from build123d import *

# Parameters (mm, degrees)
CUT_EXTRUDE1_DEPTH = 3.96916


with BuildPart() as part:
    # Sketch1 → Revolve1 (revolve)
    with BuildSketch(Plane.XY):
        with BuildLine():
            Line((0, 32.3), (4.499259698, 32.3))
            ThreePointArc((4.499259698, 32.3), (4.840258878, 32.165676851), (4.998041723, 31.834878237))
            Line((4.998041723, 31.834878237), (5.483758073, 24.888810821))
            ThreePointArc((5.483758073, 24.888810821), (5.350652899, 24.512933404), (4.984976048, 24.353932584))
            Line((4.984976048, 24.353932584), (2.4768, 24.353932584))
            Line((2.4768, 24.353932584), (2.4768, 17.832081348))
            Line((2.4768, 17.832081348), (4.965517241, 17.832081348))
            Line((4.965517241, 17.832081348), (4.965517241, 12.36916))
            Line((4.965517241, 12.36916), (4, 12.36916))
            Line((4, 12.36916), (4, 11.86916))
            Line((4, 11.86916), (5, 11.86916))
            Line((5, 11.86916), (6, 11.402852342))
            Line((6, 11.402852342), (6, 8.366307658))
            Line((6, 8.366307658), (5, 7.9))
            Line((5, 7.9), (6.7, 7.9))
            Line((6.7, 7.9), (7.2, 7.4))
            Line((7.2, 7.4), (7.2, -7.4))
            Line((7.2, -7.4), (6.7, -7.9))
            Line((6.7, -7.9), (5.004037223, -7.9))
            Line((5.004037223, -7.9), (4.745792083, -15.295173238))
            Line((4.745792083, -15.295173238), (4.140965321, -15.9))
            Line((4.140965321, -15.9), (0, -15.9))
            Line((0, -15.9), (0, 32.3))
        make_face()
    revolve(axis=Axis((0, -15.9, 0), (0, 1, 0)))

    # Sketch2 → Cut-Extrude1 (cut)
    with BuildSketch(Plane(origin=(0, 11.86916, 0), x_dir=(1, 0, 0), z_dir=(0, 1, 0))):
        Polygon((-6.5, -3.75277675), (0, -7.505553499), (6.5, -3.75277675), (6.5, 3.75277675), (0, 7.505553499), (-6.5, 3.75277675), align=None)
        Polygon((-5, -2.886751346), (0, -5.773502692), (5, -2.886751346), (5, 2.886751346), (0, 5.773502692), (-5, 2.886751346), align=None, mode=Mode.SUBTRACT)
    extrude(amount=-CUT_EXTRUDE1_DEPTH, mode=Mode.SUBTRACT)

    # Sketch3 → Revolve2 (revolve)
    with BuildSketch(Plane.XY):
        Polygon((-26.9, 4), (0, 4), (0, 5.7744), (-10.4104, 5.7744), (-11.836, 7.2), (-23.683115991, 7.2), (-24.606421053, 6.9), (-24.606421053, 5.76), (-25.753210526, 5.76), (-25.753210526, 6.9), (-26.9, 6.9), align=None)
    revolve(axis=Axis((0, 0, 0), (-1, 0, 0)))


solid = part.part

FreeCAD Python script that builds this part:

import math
import FreeCAD as App
import Part
import Sketcher
Q = App.Units.Quantity

doc = App.newDocument("Part")
body = doc.addObject("PartDesign::Body", "Body")

# Sketch on XY plane
sketch1 = body.newObject("Sketcher::SketchObject", "Sketch")
sketch1.AttachmentSupport = (doc.getObject("XY_Plane"), [""])
sketch1.MapMode = "FlatFace"
sketch1.addGeometry([
    Part.LineSegment(App.Vector(4.5, 32.3, 0), App.Vector(0, 32.3, 0)),  # 0
    Part.LineSegment(App.Vector(0, 32.3, 0), App.Vector(0, -15.9, 0)),  # 1
    Part.LineSegment(App.Vector(0, -15.9, 0), App.Vector(4.14, -15.9, 0)),  # 2
    Part.LineSegment(App.Vector(4.14, -15.9, 0), App.Vector(4.75, -15.3, 0)),  # 3
    Part.LineSegment(App.Vector(4.75, -15.3, 0), App.Vector(5, -7.9, 0)),  # 4
    Part.LineSegment(App.Vector(5, -7.9, 0), App.Vector(6.7, -7.9, 0)),  # 5
    Part.LineSegment(App.Vector(6.7, -7.9, 0), App.Vector(7.2, -7.4, 0)),  # 6
    Part.LineSegment(App.Vector(7.2, -7.4, 0), App.Vector(7.2, 7.4, 0)),  # 7
    Part.LineSegment(App.Vector(7.2, 7.4, 0), App.Vector(6.7, 7.9, 0)),  # 8
    Part.LineSegment(App.Vector(6.7, 7.9, 0), App.Vector(5, 7.9, 0)),  # 9
    Part.LineSegment(App.Vector(5, 7.9, 0), App.Vector(6, 8.37, 0)),  # 10
    Part.LineSegment(App.Vector(6, 8.37, 0), App.Vector(6, 11.4, 0)),  # 11
    Part.LineSegment(App.Vector(6, 11.4, 0), App.Vector(5, 11.87, 0)),  # 12
    Part.LineSegment(App.Vector(5, 11.87, 0), App.Vector(4, 11.87, 0)),  # 13
    Part.LineSegment(App.Vector(4, 11.87, 0), App.Vector(4, 12.37, 0)),  # 14
    Part.LineSegment(App.Vector(4, 12.37, 0), App.Vector(4.97, 12.37, 0)),  # 15
    Part.LineSegment(App.Vector(4.97, 12.37, 0), App.Vector(4.97, 17.83, 0)),  # 16
    Part.LineSegment(App.Vector(4.97, 17.83, 0), App.Vector(2.48, 17.83, 0)),  # 17
    Part.LineSegment(App.Vector(2.48, 17.83, 0), App.Vector(2.48, 24.35, 0)),  # 18
    Part.LineSegment(App.Vector(2.48, 24.35, 0), App.Vector(4.98, 24.35, 0)),  # 19
    Part.ArcOfCircle(Part.Circle(App.Vector(4.98, 24.85, 0), App.Vector(0, 0, 1), 0.5), math.radians(-90), math.radians(4)),  # 20
    Part.LineSegment(App.Vector(5.48, 24.89, 0), App.Vector(5, 31.83, 0)),  # 21
    Part.ArcOfCircle(Part.Circle(App.Vector(4.5, 31.8, 0), App.Vector(0, 0, 1), 0.5), math.radians(4), math.radians(90)),  # 22
], False)
sketch1.addConstraint([
    Sketcher.Constraint("Coincident", 0, 2, 1, 1),
    Sketcher.Constraint("Coincident", 1, 2, 2, 1),
    Sketcher.Constraint("Coincident", 2, 2, 3, 1),
    Sketcher.Constraint("Coincident", 3, 2, 4, 1),
    Sketcher.Constraint("Coincident", 4, 2, 5, 1),
    Sketcher.Constraint("Coincident", 5, 2, 6, 1),
    Sketcher.Constraint("Coincident", 6, 2, 7, 1),
    Sketcher.Constraint("Coincident", 7, 2, 8, 1),
    Sketcher.Constraint("Coincident", 8, 2, 9, 1),
    Sketcher.Constraint("Coincident", 9, 2, 10, 1),
    Sketcher.Constraint("Coincident", 10, 2, 11, 1),
    Sketcher.Constraint("Coincident", 11, 2, 12, 1),
    Sketcher.Constraint("Coincident", 12, 2, 13, 1),
    Sketcher.Constraint("Coincident", 13, 2, 14, 1),
    Sketcher.Constraint("Coincident", 14, 2, 15, 1),
    Sketcher.Constraint("Coincident", 15, 2, 16, 1),
    Sketcher.Constraint("Coincident", 16, 2, 17, 1),
    Sketcher.Constraint("Coincident", 17, 2, 18, 1),
    Sketcher.Constraint("Coincident", 18, 2, 19, 1),
    Sketcher.Constraint("Tangent", 19, 2, 20, 1),
    Sketcher.Constraint("Tangent", 20, 2, 21, 1),
    Sketcher.Constraint("Tangent", 21, 2, 22, 1),
    Sketcher.Constraint("Tangent", 22, 2, 0, 1),
    Sketcher.Constraint("Horizontal", 0),
    Sketcher.Constraint("Vertical", 1),
    Sketcher.Constraint("Horizontal", 2),
    Sketcher.Constraint("Horizontal", 5),
    Sketcher.Constraint("Vertical", 7),
    Sketcher.Constraint("Horizontal", 9),
    Sketcher.Constraint("Vertical", 11),
    Sketcher.Constraint("Horizontal", 13),
    Sketcher.Constraint("Vertical", 14),
    Sketcher.Constraint("Horizontal", 15),
    Sketcher.Constraint("Vertical", 16),
    Sketcher.Constraint("Horizontal", 17),
    Sketcher.Constraint("Vertical", 18),
    Sketcher.Constraint("Horizontal", 19),
    Sketcher.Constraint("Equal", 20, 22),
    Sketcher.Constraint("Symmetric", 5, 2, 8, 2, -1),
    Sketcher.Constraint("PointOnObject", 0, 2, -2),
    Sketcher.Constraint("Parallel", 3, 6),
    Sketcher.Constraint("Perpendicular", 6, 8),
    Sketcher.Constraint("Vertical", 9, 2, 12, 2),
    Sketcher.Constraint("Equal", 6, 8),
    Sketcher.Constraint("Equal", 10, 12),
    Sketcher.Constraint("Radius", 20, 0.5),
    Sketcher.Constraint("DistanceX", 13, 2, 13, 1, 1.0),
    Sketcher.Constraint("Angle", 4, Q("88 deg")),
    Sketcher.Constraint("Angle", 10, Q("25 deg")),
    Sketcher.Constraint("Angle", 21, Q("94 deg")),
    Sketcher.Constraint("DistanceX", 9, 2, 9, 1, 1.7),
    Sketcher.Constraint("DistanceY", 1, 2, 1, 1, 48.2),
    Sketcher.Constraint("DistanceY", 7, 1, 7, 2, 14.8),
    Sketcher.Constraint("DistanceY", 14, 1, 14, 2, 0.5),
    Sketcher.Constraint("DistanceX", -1, 1, 9, 2, 5.0),
    Sketcher.Constraint("DistanceX", -1, 1, 10, 2, 6.0),
    Sketcher.Constraint("DistanceY", 2, 2, 4, 2, 8.0),
    Sketcher.Constraint("DistanceY", -1, 1, 22, 3, 31.8),
    Sketcher.Constraint("DistanceX", 0, 2, 0, 1, 4.49926),
    Sketcher.Constraint("DistanceY", 16, 1, 16, 2, 5.462921),
    Sketcher.Constraint("DistanceY", 18, 1, 18, 2, 6.521851),
    Sketcher.Constraint("DistanceX", -1, 1, 17, 2, 2.4768),
    Sketcher.Constraint("DistanceX", 22, 3, 20, 2, 0.984498),
    Sketcher.Constraint("Distance", 4, 7.399681),
    Sketcher.Constraint("DistanceX", 2, 1, 2, 2, 4.140965),
    Sketcher.Constraint("DistanceX", 15, 1, 15, 2, 0.965517),
])
revolution = body.newObject("PartDesign::Revolution", "Revolution")
revolution.Profile = sketch1
revolution.ReferenceAxis = (sketch1, ["V_Axis"])
revolution.Angle = 360

# Sketch on XZ plane
sketch2 = body.newObject("Sketcher::SketchObject", "Sketch001")
sketch2.AttachmentSupport = (doc.getObject("XZ_Plane"), [""])
sketch2.MapMode = "FlatFace"
sketch2.AttachmentOffset = App.Placement(App.Vector(0, 0, -11.86916), App.Rotation())
sketch2.addGeometry([
    Part.LineSegment(App.Vector(-6, 4, 0), App.Vector(0, 8, 0)),  # 0
    Part.LineSegment(App.Vector(0, 8, 0), App.Vector(6, 4, 0)),  # 1
    Part.LineSegment(App.Vector(6, 4, 0), App.Vector(6, -4, 0)),  # 2
    Part.LineSegment(App.Vector(6, -4, 0), App.Vector(0, -8, 0)),  # 3
    Part.LineSegment(App.Vector(0, -8, 0), App.Vector(-6, -4, 0)),  # 4
    Part.LineSegment(App.Vector(-6, -4, 0), App.Vector(-6, 4, 0)),  # 5
    Part.LineSegment(App.Vector(0, 6, 0), App.Vector(-5, 3, 0)),  # 6
    Part.LineSegment(App.Vector(-5, 3, 0), App.Vector(-5, -3, 0)),  # 7
    Part.LineSegment(App.Vector(-5, -3, 0), App.Vector(0, -6, 0)),  # 8
    Part.LineSegment(App.Vector(0, -6, 0), App.Vector(5, -3, 0)),  # 9
    Part.LineSegment(App.Vector(5, -3, 0), App.Vector(5, 3, 0)),  # 10
    Part.LineSegment(App.Vector(5, 3, 0), App.Vector(0, 6, 0)),  # 11
], False)
sketch2.addConstraint([
    Sketcher.Constraint("Coincident", 0, 2, 1, 1),
    Sketcher.Constraint("Coincident", 1, 2, 2, 1),
    Sketcher.Constraint("Coincident", 2, 2, 3, 1),
    Sketcher.Constraint("Coincident", 3, 2, 4, 1),
    Sketcher.Constraint("Coincident", 4, 2, 5, 1),
    Sketcher.Constraint("Coincident", 5, 2, 0, 1),
    Sketcher.Constraint("Coincident", 6, 2, 7, 1),
    Sketcher.Constraint("Coincident", 7, 2, 8, 1),
    Sketcher.Constraint("Coincident", 8, 2, 9, 1),
    Sketcher.Constraint("Coincident", 9, 2, 10, 1),
    Sketcher.Constraint("Coincident", 10, 2, 11, 1),
    Sketcher.Constraint("Coincident", 11, 2, 6, 1),
    Sketcher.Constraint("Vertical", 2),
    Sketcher.Constraint("Vertical", 5),
    Sketcher.Constraint("Vertical", 7),
    Sketcher.Constraint("Vertical", 10),
    Sketcher.Constraint("Symmetric", 0, 2, 3, 2, -1, 1),
    Sketcher.Constraint("Symmetric", 1, 2, 4, 2, -1, 1),
    Sketcher.Constraint("Symmetric", 6, 2, 9, 2, -1, 1),
    Sketcher.Constraint("Symmetric", 8, 2, 11, 2, -1, 1),
    Sketcher.Constraint("PointOnObject", 0, 2, -2),
    Sketcher.Constraint("PointOnObject", 8, 2, -2),
    Sketcher.Constraint("Parallel", 0, 3),
    Sketcher.Constraint("Parallel", 3, 6),
    Sketcher.Constraint("Parallel", 4, 8),
    Sketcher.Constraint("Parallel", 8, 11),
    Sketcher.Constraint("Horizontal", 2, 2, 4, 2),
    Sketcher.Constraint("Angle", 0, Q("30 deg")),
    Sketcher.Constraint("DistanceX", 6, 2, -1, 1, 5.0),
    Sketcher.Constraint("DistanceX", 4, 2, 2, 2, 13.0),
    Sketcher.Constraint("DistanceY", 2, 2, 2, 1, 7.505554),
    Sketcher.Constraint("DistanceY", 7, 2, 7, 1, 5.773503),
])
pocket1 = body.newObject("PartDesign::Pocket", "Pocket")
pocket1.Profile = sketch2
pocket1.Length = 3.96916
pocket1.Reversed = True

# Sketch on XY plane
sketch3 = body.newObject("Sketcher::SketchObject", "Sketch002")
sketch3.AttachmentSupport = (doc.getObject("XY_Plane"), [""])
sketch3.MapMode = "FlatFace"
sketch3.addGeometry([
    Part.LineSegment(App.Vector(-26.9, 4, 0), App.Vector(0, 4, 0)),  # 0
    Part.LineSegment(App.Vector(0, 4, 0), App.Vector(0, 5.8, 0)),  # 1
    Part.LineSegment(App.Vector(0, 5.8, 0), App.Vector(-10.4, 5.8, 0)),  # 2
    Part.LineSegment(App.Vector(-10.4, 5.8, 0), App.Vector(-11.8, 7.2, 0)),  # 3
    Part.LineSegment(App.Vector(-11.8, 7.2, 0), App.Vector(-23.7, 7.2, 0)),  # 4
    Part.LineSegment(App.Vector(-23.7, 7.2, 0), App.Vector(-24.6, 6.9, 0)),  # 5
    Part.LineSegment(App.Vector(-24.6, 6.9, 0), App.Vector(-24.6, 5.8, 0)),  # 6
    Part.LineSegment(App.Vector(-24.6, 5.8, 0), App.Vector(-25.8, 5.8, 0)),  # 7
    Part.LineSegment(App.Vector(-25.8, 5.8, 0), App.Vector(-25.8, 6.9, 0)),  # 8
    Part.LineSegment(App.Vector(-25.8, 6.9, 0), App.Vector(-26.9, 6.9, 0)),  # 9
    Part.LineSegment(App.Vector(-26.9, 6.9, 0), App.Vector(-26.9, 4, 0)),  # 10
], False)
sketch3.addConstraint([
    Sketcher.Constraint("Coincident", 0, 2, 1, 1),
    Sketcher.Constraint("Coincident", 1, 2, 2, 1),
    Sketcher.Constraint("Coincident", 2, 2, 3, 1),
    Sketcher.Constraint("Coincident", 3, 2, 4, 1),
    Sketcher.Constraint("Coincident", 4, 2, 5, 1),
    Sketcher.Constraint("Coincident", 5, 2, 6, 1),
    Sketcher.Constraint("Coincident", 6, 2, 7, 1),
    Sketcher.Constraint("Coincident", 7, 2, 8, 1),
    Sketcher.Constraint("Coincident", 8, 2, 9, 1),
    Sketcher.Constraint("Coincident", 9, 2, 10, 1),
    Sketcher.Constraint("Coincident", 10, 2, 0, 1),
    Sketcher.Constraint("Horizontal", 0),
    Sketcher.Constraint("Vertical", 1),
    Sketcher.Constraint("Horizontal", 2),
    Sketcher.Constraint("Horizontal", 4),
    Sketcher.Constraint("Vertical", 6),
    Sketcher.Constraint("Horizontal", 7),
    Sketcher.Constraint("Vertical", 8),
    Sketcher.Constraint("Horizontal", 9),
    Sketcher.Constraint("Vertical", 10),
    Sketcher.Constraint("PointOnObject", 0, 2, -2),
    Sketcher.Constraint("Horizontal", 5, 2, 8, 2),
    Sketcher.Constraint("Equal", 7, 9),
    Sketcher.Constraint("Angle", 3, Q("135 deg")),
    Sketcher.Constraint("Angle", 5, Q("-162 deg")),
    Sketcher.Constraint("DistanceX", 0, 1, 0, 2, 26.9),
    Sketcher.Constraint("DistanceY", 10, 2, 10, 1, 2.9),
    Sketcher.Constraint("DistanceY", -1, 1, 0, 2, 4.0),
    Sketcher.Constraint("DistanceY", 6, 2, 6, 1, 1.14),
    Sketcher.Constraint("DistanceY", -1, 1, 3, 2, 7.2),
    Sketcher.Constraint("DistanceX", 2, 2, 2, 1, 10.4104),
    Sketcher.Constraint("DistanceY", 1, 1, 1, 2, 1.7744),
    Sketcher.Constraint("DistanceX", 7, 2, 7, 1, 1.146789),
])
revolution2 = body.newObject("PartDesign::Revolution", "Revolution001")
revolution2.Profile = sketch3
revolution2.ReferenceAxis = (sketch3, ["H_Axis"])
revolution2.Angle = 360

doc.recompute()
